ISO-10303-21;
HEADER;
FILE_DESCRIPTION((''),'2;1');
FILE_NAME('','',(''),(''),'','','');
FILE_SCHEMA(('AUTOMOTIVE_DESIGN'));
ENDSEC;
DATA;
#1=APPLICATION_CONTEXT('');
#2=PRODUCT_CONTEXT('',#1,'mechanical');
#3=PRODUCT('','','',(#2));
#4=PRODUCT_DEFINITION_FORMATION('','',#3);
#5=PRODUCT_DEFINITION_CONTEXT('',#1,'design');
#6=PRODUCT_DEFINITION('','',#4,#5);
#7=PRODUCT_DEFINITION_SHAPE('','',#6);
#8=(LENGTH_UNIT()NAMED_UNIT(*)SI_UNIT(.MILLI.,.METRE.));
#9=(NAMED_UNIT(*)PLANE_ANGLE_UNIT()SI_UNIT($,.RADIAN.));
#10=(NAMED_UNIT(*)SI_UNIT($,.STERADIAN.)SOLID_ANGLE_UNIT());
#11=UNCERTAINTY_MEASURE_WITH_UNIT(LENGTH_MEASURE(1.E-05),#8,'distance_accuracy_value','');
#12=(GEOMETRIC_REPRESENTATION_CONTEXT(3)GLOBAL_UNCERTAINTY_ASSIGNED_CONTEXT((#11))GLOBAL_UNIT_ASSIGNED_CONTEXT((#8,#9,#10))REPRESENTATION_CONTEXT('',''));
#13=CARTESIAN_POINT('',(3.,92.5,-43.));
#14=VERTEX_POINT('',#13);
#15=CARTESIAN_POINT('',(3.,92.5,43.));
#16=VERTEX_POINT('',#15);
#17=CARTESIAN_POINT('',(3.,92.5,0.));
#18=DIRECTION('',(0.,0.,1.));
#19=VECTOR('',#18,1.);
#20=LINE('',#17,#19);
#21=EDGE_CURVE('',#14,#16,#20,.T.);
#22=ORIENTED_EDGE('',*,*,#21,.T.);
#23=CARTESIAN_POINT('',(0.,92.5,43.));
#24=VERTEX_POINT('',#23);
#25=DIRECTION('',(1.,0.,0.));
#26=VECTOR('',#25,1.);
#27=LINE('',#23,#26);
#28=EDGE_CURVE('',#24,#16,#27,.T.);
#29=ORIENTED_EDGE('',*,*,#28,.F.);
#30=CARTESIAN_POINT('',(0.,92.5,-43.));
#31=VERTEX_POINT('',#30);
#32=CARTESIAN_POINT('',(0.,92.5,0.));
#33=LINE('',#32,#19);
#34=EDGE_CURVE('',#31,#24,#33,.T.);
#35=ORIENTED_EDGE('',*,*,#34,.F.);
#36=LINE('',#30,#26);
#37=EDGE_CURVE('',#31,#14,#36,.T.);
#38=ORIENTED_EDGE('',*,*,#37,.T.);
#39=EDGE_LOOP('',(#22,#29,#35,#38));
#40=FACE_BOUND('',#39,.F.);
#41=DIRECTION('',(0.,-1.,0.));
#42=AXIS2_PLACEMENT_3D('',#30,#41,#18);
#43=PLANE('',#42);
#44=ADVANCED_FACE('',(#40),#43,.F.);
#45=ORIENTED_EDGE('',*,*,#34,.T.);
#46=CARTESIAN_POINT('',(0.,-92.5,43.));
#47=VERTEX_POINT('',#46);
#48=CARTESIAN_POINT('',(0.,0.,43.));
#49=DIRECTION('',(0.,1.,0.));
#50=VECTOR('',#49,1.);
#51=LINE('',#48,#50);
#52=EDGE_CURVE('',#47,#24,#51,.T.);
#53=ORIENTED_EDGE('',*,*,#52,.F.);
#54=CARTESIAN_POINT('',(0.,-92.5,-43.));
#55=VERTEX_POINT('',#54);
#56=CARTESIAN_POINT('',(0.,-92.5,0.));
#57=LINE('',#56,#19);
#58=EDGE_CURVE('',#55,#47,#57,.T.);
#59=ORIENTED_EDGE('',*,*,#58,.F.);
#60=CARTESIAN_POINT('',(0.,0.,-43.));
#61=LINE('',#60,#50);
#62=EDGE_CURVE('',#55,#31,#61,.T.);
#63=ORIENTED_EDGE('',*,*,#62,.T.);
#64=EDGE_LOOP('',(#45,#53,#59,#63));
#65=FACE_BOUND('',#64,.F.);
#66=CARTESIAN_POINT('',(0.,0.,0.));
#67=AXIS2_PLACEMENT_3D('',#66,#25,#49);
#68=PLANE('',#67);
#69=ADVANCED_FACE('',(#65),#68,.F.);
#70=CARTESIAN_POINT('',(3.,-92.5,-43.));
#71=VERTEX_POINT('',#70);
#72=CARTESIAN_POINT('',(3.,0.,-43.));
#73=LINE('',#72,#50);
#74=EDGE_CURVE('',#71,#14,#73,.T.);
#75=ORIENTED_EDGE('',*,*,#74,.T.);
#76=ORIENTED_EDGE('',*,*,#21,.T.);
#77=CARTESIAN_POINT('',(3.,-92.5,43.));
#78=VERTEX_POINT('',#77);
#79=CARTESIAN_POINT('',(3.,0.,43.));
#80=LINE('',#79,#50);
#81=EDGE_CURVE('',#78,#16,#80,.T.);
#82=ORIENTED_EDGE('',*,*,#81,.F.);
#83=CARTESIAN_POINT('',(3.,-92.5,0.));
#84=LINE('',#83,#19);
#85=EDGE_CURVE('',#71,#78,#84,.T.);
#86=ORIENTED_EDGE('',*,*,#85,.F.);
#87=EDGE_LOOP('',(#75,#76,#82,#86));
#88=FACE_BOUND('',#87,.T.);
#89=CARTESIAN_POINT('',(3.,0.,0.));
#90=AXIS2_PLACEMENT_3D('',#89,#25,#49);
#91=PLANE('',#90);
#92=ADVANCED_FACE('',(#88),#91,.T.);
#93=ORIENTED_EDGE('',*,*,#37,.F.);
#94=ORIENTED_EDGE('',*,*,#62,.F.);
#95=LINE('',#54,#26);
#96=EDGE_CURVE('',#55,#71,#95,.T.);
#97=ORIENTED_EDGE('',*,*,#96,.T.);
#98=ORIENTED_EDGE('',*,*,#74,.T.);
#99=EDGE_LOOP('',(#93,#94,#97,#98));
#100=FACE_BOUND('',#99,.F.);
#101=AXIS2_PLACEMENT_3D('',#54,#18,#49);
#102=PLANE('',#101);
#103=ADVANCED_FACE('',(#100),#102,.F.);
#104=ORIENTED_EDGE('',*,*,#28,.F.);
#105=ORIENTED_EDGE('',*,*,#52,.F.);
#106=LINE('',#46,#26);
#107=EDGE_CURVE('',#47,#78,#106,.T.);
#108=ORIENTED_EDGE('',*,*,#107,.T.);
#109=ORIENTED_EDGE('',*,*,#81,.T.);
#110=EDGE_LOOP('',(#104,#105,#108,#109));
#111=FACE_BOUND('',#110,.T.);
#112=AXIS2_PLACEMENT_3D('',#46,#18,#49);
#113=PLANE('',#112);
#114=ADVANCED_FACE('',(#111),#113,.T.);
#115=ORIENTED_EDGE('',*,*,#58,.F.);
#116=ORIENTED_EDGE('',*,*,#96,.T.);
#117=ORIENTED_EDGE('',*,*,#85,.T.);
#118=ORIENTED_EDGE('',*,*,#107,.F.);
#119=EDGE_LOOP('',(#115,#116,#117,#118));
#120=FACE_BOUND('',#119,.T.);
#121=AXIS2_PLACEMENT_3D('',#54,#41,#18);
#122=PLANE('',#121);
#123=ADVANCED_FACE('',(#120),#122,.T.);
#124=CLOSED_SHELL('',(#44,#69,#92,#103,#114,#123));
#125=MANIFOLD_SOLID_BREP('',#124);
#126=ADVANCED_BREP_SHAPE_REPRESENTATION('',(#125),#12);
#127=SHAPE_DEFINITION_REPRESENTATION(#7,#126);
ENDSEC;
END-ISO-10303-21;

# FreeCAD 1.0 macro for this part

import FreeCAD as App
import Part
import Sketcher
Q = App.Units.Quantity

doc = App.newDocument("Part")
params = doc.addObject("Spreadsheet::Sheet", "Params")
for row, (alias, value) in enumerate([
    ("sketch1_width", "185 mm"),
    ("sketch1_height", "86 mm"),
    ("pad1_length", "3 mm"),
], start=1):
    params.set(f"A{row}", alias)
    params.set(f"B{row}", "=" + value)
    params.setAlias(f"B{row}", alias)

body = doc.addObject("PartDesign::Body", "Body")

sketch1 = body.newObject("Sketcher::SketchObject", "Sketch")
sketch1.AttachmentSupport = (doc.getObject("YZ_Plane"), [""])
sketch1.MapMode = "FlatFace"
sketch1.addGeometry([
    Part.LineSegment(App.Vector(-92, 43, 0), App.Vector(-92, -43, 0)),
    Part.LineSegment(App.Vector(-92, -43, 0), App.Vector(92, -43, 0)),
    Part.LineSegment(App.Vector(92, -43, 0), App.Vector(92, 43, 0)),
    Part.LineSegment(App.Vector(92, 43, 0), App.Vector(-92, 43, 0)),
], False)
sketch1.addConstraint([
    Sketcher.Constraint("Coincident", 0, 2, 1, 1),
    Sketcher.Constraint("Coincident", 1, 2, 2, 1),
    Sketcher.Constraint("Coincident", 2, 2, 3, 1),
    Sketcher.Constraint("Coincident", 3, 2, 0, 1),
    Sketcher.Constraint("Vertical", 0),
    Sketcher.Constraint("Horizontal", 1),
    Sketcher.Constraint("Vertical", 2),
    Sketcher.Constraint("Horizontal", 3),
    Sketcher.Constraint("Symmetric", 0, 2, 2, 2, -1, 1),
    Sketcher.Constraint("DistanceX", 1, 1, 1, 2, Q("185 mm")),
    Sketcher.Constraint("DistanceY", 0, 2, 0, 1, Q("86 mm")),
])
sketch1.setExpression("Constraints[9]", "Params.sketch1_width")
sketch1.setExpression("Constraints[10]", "Params.sketch1_height")
pad1 = body.newObject("PartDesign::Pad", "Pad")
pad1.Profile = sketch1
pad1.setExpression("Length", "Params.pad1_length")

doc.recompute()
